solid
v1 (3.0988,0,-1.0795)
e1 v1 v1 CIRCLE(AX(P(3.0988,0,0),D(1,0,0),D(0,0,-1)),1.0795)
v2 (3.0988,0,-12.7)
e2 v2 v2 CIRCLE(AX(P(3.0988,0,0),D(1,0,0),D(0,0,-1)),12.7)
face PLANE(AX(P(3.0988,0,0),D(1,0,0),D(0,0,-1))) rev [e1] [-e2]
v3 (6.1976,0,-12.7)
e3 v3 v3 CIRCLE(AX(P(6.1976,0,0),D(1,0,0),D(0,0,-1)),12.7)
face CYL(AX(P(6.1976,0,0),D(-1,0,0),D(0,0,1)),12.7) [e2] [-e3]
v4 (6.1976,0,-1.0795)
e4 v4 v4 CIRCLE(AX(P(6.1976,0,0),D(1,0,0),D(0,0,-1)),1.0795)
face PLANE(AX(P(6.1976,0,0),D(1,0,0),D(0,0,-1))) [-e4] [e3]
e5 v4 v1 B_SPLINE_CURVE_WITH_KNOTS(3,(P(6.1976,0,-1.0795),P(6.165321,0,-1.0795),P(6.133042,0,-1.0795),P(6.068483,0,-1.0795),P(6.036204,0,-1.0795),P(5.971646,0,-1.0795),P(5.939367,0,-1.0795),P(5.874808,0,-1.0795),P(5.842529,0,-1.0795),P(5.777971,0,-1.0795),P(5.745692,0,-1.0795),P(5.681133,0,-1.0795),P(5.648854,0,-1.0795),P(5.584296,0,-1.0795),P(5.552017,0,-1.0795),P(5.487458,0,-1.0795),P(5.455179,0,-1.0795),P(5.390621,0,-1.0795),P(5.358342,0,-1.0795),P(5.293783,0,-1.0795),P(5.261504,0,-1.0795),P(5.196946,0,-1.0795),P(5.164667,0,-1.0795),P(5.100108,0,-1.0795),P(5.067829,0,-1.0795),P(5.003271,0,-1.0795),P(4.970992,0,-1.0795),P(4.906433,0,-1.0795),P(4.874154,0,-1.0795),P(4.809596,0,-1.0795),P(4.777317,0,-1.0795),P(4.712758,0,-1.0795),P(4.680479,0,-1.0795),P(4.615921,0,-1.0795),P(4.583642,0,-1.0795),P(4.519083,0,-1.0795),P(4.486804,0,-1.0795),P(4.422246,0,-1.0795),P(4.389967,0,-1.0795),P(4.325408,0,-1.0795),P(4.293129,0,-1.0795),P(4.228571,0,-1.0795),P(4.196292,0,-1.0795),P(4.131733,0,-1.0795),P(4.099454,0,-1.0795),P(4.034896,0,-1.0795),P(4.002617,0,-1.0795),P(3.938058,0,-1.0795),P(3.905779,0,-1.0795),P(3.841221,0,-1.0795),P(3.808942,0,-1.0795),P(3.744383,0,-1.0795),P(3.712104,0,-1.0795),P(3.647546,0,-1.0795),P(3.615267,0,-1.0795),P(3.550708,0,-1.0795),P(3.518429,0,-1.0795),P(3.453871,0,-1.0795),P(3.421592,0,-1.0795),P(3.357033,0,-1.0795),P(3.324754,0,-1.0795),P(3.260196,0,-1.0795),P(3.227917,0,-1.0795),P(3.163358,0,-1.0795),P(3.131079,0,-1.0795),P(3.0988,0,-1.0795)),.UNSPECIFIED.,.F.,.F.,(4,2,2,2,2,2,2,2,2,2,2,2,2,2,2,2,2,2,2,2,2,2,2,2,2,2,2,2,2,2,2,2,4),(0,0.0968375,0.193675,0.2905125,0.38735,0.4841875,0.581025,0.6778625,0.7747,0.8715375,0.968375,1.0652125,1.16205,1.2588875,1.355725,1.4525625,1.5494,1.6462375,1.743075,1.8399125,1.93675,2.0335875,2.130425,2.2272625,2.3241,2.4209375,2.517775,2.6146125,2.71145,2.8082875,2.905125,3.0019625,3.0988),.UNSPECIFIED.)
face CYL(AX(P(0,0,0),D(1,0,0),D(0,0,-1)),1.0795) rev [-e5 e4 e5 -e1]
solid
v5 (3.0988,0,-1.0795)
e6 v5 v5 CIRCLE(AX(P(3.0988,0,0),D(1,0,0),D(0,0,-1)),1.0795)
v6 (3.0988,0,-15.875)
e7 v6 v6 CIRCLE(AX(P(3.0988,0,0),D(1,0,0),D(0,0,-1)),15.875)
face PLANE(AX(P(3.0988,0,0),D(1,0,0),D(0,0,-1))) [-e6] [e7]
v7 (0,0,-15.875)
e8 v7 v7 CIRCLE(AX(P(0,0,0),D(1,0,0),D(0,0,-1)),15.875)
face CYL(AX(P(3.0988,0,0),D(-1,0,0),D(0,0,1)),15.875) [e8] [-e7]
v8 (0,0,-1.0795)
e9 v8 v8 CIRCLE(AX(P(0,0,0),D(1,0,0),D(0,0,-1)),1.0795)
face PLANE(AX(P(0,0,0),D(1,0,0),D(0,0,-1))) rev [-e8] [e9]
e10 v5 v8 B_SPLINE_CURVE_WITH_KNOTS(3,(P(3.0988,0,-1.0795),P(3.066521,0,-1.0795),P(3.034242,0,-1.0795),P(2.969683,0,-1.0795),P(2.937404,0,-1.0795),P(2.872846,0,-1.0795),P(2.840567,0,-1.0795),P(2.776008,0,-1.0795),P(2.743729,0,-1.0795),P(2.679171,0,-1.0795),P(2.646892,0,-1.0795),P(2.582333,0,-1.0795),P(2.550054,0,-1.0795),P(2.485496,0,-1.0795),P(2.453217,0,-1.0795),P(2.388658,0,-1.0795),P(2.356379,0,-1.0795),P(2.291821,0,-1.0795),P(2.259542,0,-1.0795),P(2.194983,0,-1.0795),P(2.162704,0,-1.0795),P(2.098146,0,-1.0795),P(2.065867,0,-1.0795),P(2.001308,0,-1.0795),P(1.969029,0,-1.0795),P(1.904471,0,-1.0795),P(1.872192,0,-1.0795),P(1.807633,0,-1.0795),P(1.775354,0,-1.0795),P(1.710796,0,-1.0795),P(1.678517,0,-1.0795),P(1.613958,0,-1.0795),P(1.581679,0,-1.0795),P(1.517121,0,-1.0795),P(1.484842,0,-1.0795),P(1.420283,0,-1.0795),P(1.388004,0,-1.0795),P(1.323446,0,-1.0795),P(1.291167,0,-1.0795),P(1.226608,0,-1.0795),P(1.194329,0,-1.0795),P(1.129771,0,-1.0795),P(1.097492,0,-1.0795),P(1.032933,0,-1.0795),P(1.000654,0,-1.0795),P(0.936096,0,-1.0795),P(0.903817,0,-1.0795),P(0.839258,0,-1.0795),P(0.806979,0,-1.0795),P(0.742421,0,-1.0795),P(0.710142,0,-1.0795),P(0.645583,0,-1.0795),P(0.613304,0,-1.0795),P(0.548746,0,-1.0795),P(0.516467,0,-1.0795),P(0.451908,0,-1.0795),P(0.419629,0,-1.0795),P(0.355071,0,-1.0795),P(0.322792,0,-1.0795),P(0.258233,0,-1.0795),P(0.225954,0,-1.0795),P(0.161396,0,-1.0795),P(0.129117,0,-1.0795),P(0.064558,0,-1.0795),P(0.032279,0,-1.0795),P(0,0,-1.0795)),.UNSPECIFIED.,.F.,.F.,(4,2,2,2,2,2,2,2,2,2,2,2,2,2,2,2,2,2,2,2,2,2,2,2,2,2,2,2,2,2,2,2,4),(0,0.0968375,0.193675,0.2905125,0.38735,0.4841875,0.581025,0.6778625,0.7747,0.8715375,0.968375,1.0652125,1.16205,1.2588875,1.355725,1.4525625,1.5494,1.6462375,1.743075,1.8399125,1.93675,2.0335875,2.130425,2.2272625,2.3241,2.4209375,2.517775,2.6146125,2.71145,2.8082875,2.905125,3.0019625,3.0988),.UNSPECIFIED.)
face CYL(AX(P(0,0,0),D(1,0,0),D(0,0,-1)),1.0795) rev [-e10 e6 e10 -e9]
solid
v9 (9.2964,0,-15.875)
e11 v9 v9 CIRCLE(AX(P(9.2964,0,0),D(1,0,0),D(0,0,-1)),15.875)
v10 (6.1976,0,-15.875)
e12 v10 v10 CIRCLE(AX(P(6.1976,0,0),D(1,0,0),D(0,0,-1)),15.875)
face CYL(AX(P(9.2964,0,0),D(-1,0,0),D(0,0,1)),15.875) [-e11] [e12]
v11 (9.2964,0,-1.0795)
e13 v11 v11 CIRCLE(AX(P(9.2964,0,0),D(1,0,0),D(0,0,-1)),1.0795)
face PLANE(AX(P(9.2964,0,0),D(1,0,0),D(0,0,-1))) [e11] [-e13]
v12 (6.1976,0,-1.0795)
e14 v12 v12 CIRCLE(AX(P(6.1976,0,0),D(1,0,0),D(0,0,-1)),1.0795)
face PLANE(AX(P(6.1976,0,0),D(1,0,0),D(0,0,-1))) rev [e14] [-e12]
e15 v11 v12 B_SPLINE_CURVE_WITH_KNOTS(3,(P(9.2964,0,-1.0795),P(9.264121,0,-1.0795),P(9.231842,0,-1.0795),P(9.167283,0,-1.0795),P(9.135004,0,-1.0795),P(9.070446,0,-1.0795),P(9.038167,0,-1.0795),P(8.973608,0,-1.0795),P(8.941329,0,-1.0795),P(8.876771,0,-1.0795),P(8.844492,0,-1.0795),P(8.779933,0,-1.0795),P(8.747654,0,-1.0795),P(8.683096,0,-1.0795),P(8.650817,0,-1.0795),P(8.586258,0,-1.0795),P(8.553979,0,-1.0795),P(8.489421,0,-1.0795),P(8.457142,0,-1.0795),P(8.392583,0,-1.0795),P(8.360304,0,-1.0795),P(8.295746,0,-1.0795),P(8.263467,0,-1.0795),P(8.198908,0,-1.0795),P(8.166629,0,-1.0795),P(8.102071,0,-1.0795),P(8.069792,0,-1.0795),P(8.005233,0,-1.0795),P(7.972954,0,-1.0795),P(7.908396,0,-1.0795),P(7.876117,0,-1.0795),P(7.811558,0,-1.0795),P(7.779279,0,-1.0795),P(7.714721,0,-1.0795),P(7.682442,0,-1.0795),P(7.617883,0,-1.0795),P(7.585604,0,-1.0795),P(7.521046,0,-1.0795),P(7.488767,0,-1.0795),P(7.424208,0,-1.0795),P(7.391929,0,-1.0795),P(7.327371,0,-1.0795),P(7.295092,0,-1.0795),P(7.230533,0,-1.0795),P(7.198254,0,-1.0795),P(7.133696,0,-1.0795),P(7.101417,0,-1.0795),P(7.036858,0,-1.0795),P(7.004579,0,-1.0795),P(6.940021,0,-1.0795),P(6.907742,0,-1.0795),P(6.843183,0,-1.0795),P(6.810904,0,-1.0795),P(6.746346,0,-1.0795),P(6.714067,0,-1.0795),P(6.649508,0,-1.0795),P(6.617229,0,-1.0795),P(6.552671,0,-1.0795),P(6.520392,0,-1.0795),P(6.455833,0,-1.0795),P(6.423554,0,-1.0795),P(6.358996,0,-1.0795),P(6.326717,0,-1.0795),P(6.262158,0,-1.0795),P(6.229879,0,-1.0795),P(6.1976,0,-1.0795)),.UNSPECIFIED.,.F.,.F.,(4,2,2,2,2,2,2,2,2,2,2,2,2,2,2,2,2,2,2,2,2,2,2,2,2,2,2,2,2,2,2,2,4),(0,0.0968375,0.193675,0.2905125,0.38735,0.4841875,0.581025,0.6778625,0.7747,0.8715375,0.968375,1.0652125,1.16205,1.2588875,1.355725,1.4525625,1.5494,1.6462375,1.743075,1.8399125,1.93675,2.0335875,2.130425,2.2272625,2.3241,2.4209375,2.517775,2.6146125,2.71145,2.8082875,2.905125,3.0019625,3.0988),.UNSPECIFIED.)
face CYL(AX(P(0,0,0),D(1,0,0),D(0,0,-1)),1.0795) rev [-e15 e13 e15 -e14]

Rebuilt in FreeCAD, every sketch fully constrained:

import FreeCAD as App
import Part
import Sketcher
from FreeCAD import Vector
Q = App.Units.Quantity

doc = App.newDocument("Part")
params = doc.addObject("Spreadsheet::Sheet", "Params")
for row, (alias, value) in enumerate([
    ("sketch1_diameter", "1.25 in"),
    ("pad1_length", "0.122 in"),
    ("sketch2_diameter", "1 in"),
    ("pad2_length", "0.122 in"),
    ("sketch3_diameter", "1.25 in"),
    ("pad3_length", "0.122 in"),
    ("sketch4_diameter", "0.085 in"),
    ("pad4_length", "25.299265 mm"),
], start=1):
    params.set(f"A{row}", alias)
    params.set(f"B{row}", "=" + value)
    params.setAlias(f"B{row}", alias)

body = doc.addObject("PartDesign::Body", "Body")

sketch1 = body.newObject("Sketcher::SketchObject", "Sketch")
sketch1.AttachmentSupport = (doc.getObject("YZ_Plane"), [""])
sketch1.MapMode = "FlatFace"
sketch1.addGeometry(Part.Circle(Vector(0, 0, 0), Vector(0, 0, 1), 16), False)
sketch1.addConstraint([
    Sketcher.Constraint("Coincident", 0, 3, -1, 1),
    Sketcher.Constraint("Diameter", 0, Q("1.25 in")),
])
sketch1.setExpression("Constraints[1]", "Params.sketch1_diameter")
pad1 = body.newObject("PartDesign::Pad", "Pad")
pad1.Profile = sketch1
pad1.setExpression("Length", "Params.pad1_length")
body2 = doc.addObject("PartDesign::Body", "Body001")

sketch2 = body2.newObject("Sketcher::SketchObject", "Sketch001")
sketch2.AttachmentSupport = (doc.getObject("YZ_Plane001"), [""])
sketch2.MapMode = "FlatFace"
sketch2.AttachmentOffset = App.Placement(Vector(0, 0, 0.122 * 25.4), App.Rotation())
sketch2.addGeometry(Part.Circle(Vector(0, 0, 0), Vector(0, 0, 1), 13), False)
sketch2.addConstraint([
    Sketcher.Constraint("Coincident", 0, 3, -1, 1),
    Sketcher.Constraint("Diameter", 0, Q("1 in")),
])
sketch2.setExpression("Constraints[1]", "Params.sketch2_diameter")
pad2 = body2.newObject("PartDesign::Pad", "Pad001")
pad2.Profile = sketch2
pad2.setExpression("Length", "Params.pad2_length")
body3 = doc.addObject("PartDesign::Body", "Body002")

sketch3 = body3.newObject("Sketcher::SketchObject", "Sketch002")
sketch3.AttachmentSupport = (doc.getObject("YZ_Plane002"), [""])
sketch3.MapMode = "FlatFace"
sketch3.AttachmentOffset = App.Placement(Vector(0, 0, 0.244 * 25.4), App.Rotation())
sketch3.addGeometry(Part.Circle(Vector(0, 0, 0), Vector(0, 0, 1), 16), False)
sketch3.addConstraint([
    Sketcher.Constraint("Coincident", 0, 3, -1, 1),
    Sketcher.Constraint("Diameter", 0, Q("1.25 in")),
])
sketch3.setExpression("Constraints[1]", "Params.sketch3_diameter")
pad3 = body3.newObject("PartDesign::Pad", "Pad002")
pad3.Profile = sketch3
pad3.setExpression("Length", "Params.pad3_length")
body4 = doc.addObject("PartDesign::Body", "Body003")

sketch4 = body4.newObject("Sketcher::SketchObject", "Sketch003")
sketch4.AttachmentSupport = (doc.getObject("YZ_Plane003"), [""])
sketch4.MapMode = "FlatFace"
sketch4.AttachmentOffset = App.Placement(Vector(0, 0, 0.366 * 25.4), App.Rotation())
sketch4.addGeometry(Part.Circle(Vector(0, 0, 0), Vector(0, 0, 1), 1.1), False)
sketch4.addConstraint([
    Sketcher.Constraint("Coincident", 0, 3, -1, 1),
    Sketcher.Constraint("Diameter", 0, Q("0.085 in")),
])
sketch4.setExpression("Constraints[1]", "Params.sketch4_diameter")
pad4 = body4.newObject("PartDesign::Pad", "Pad003")
pad4.Profile = sketch4
pad4.setExpression("Length", "Params.pad4_length")
pad4.Reversed = True
doc.recompute()

body5 = doc.addObject("PartDesign::Body", "Body004")
body5.BaseFeature = body4
boolean = body.newObject("PartDesign::Boolean", "Boolean")
boolean.Type = "Cut"
boolean.addObjects([body5])
doc.recompute()

body6 = doc.addObject("PartDesign::Body", "Body005")
body6.BaseFeature = body4
boolean2 = body2.newObject("PartDesign::Boolean", "Boolean001")
boolean2.Type = "Cut"
boolean2.addObjects([body6])
doc.recompute()

boolean3 = body3.newObject("PartDesign::Boolean", "Boolean002")
boolean3.Type = "Cut"
boolean3.addObjects([body4])

doc.recompute()
